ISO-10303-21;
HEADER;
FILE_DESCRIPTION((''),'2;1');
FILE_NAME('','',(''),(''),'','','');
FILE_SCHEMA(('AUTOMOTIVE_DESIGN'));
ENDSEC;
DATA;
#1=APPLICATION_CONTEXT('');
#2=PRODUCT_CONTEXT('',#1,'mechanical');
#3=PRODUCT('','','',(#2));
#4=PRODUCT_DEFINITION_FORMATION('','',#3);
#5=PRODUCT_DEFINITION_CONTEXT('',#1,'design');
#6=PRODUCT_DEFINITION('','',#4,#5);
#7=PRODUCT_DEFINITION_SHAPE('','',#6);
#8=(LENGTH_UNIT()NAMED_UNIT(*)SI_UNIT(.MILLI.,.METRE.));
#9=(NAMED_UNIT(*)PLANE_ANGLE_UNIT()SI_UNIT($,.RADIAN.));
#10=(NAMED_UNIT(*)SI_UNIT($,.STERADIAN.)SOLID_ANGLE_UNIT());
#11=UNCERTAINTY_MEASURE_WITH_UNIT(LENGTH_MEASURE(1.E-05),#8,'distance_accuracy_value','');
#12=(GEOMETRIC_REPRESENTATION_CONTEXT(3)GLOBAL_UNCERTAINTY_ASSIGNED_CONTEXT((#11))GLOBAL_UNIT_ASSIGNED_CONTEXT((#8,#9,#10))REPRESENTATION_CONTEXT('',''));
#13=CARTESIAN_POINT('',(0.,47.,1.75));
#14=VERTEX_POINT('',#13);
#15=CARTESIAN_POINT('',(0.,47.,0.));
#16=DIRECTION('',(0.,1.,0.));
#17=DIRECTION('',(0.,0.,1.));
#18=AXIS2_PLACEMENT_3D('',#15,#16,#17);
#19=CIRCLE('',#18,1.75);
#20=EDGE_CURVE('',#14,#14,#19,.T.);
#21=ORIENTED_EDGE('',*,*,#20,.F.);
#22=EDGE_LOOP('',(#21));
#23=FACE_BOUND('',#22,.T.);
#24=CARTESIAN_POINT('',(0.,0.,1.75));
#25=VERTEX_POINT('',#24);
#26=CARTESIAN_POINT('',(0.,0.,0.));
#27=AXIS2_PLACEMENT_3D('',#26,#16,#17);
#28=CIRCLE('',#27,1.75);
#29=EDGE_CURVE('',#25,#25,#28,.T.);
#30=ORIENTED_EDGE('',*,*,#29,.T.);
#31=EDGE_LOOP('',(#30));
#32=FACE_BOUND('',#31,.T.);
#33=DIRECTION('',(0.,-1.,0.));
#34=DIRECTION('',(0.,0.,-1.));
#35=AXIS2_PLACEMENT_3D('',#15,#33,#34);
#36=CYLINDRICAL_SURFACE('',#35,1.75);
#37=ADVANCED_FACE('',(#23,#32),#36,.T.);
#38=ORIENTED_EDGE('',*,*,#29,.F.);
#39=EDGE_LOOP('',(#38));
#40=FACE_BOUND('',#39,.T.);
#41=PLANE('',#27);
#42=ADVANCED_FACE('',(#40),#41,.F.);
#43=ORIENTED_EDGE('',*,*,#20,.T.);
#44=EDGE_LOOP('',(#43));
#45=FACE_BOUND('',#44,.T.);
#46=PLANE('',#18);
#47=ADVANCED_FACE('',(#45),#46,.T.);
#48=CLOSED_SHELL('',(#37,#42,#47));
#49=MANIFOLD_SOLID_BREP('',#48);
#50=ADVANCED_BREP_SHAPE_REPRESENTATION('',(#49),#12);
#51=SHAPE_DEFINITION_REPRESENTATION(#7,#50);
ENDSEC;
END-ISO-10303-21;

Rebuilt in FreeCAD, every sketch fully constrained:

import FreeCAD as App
import Part
import Sketcher
Q = App.Units.Quantity

doc = App.newDocument("Part")
body = doc.addObject("PartDesign::Body", "Body")

# Sketch on XZ plane
sketch1 = body.newObject("Sketcher::SketchObject", "Sketch")
sketch1.AttachmentSupport = (doc.getObject("XZ_Plane"), [""])
sketch1.MapMode = "FlatFace"
sketch1.addGeometry(Part.Circle(App.Vector(0, 0, 0), App.Vector(0, 0, 1), 1.75), False)
sketch1.addConstraint([
    Sketcher.Constraint("Coincident", 0, 3, -1, 1),
    Sketcher.Constraint("Diameter", 0, Q("3.5 mm")),
])
pad1 = body.newObject("PartDesign::Pad", "Pad")
pad1.Profile = sketch1
pad1.Length = 47
pad1.Reversed = True

doc.recompute()
